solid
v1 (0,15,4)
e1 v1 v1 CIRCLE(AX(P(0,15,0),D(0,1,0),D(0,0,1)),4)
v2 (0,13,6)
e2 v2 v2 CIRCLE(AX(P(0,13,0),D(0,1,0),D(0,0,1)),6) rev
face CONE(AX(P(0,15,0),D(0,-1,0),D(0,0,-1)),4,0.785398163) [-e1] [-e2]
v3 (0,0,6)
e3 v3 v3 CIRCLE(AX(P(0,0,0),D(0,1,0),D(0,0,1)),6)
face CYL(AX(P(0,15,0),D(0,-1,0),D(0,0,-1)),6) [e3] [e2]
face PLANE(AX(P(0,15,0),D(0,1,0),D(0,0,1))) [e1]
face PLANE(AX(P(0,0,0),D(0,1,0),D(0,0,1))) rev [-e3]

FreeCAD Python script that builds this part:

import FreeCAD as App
import Part
import Sketcher
Q = App.Units.Quantity


def edges_at(feature, points):
    """Names of the edges that pass closest to the given points."""
    edges = feature.Shape.Edges
    near = lambda p: min(range(len(edges)), key=lambda i: edges[i].distToShape(Part.Vertex(*p))[0])
    return sorted({f"Edge{near(p) + 1}" for p in points})

doc = App.newDocument("Part")
body = doc.addObject("PartDesign::Body", "Body")

# Sketch on XZ plane
sketch1 = body.newObject("Sketcher::SketchObject", "Sketch")
sketch1.AttachmentSupport = (doc.getObject("XZ_Plane"), [""])
sketch1.MapMode = "FlatFace"
sketch1.addGeometry(Part.Circle(App.Vector(0, 0, 0), App.Vector(0, 0, 1), 6), False)
sketch1.addConstraint(Sketcher.Constraint("Coincident", 0, 3, -1, 1))
sketch1.addConstraint(Sketcher.Constraint("Diameter", 0, Q("12 mm")))
pad1 = body.newObject("PartDesign::Pad", "Pad")
pad1.Profile = sketch1
pad1.Length = 15
pad1.Reversed = True
doc.recompute()

chamfer = body.newObject("PartDesign::Chamfer", "Chamfer")
chamfer.Base = (pad1, edges_at(pad1, [(0, 15, -6)]))
chamfer.Size = 2

doc.recompute()
